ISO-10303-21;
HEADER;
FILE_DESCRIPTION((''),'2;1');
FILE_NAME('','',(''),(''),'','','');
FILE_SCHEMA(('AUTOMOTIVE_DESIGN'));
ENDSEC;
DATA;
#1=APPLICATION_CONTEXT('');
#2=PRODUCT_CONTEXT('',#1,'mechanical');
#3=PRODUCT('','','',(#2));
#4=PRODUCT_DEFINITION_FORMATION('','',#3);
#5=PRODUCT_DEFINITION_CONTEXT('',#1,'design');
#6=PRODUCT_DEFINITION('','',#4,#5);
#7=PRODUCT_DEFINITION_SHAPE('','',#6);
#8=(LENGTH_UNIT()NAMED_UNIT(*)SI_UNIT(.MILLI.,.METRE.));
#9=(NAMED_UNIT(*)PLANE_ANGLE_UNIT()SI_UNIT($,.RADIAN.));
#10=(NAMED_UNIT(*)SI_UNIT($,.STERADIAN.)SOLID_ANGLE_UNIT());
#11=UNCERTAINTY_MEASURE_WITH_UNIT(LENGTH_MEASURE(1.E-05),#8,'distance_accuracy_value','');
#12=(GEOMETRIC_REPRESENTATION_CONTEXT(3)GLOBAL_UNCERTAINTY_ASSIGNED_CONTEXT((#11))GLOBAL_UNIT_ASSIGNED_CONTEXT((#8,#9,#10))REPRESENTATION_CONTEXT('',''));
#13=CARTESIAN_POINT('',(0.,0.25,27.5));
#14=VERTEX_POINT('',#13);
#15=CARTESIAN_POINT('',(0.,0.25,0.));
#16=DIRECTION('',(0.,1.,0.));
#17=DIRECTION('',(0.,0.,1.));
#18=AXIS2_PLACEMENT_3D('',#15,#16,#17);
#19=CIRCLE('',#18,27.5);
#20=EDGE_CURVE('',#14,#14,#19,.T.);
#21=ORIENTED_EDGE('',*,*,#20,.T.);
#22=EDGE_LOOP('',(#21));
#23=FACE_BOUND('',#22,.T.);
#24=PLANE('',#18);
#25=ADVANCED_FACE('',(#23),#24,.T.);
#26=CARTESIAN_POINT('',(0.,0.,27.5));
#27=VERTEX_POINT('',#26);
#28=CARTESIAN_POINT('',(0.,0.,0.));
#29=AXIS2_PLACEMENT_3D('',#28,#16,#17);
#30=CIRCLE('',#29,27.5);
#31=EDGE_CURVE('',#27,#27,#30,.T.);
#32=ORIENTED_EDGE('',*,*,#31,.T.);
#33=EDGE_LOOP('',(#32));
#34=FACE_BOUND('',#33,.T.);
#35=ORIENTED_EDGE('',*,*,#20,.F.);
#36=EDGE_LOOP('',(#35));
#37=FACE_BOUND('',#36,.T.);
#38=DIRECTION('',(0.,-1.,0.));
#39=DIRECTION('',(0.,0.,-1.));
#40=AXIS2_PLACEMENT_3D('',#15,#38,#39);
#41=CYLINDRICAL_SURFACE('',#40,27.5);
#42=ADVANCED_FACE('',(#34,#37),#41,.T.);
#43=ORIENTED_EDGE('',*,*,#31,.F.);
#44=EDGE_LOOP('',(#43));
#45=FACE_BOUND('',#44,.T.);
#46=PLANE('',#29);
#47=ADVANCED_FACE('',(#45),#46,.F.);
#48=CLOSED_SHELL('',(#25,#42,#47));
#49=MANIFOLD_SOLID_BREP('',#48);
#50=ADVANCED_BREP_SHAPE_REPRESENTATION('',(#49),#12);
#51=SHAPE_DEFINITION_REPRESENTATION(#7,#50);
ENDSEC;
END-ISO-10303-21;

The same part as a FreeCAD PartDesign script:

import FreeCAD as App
import Part
import Sketcher
from FreeCAD import Vector

doc = App.newDocument("Part")
body = doc.addObject("PartDesign::Body", "Body")

sketch1 = doc.addObject("Sketcher::SketchObject", "Sketch")
body.addObject(sketch1)
sketch1.AttachmentSupport = (doc.XZ_Plane, [""])
sketch1.MapMode = "FlatFace"
sketch1.addGeometry(Part.Circle(Vector(0, 0, 0), Vector(0, 0, 1), 28), False)
sketch1.addConstraint(Sketcher.Constraint("Coincident", 0, 3, -1, 1))
sketch1.addConstraint(Sketcher.Constraint("Diameter", 0, 55.0))
pad1 = doc.addObject("PartDesign::Pad", "Pad")
body.addObject(pad1)
pad1.Profile = sketch1
pad1.Length = 0.25
pad1.Reversed = True

doc.recompute()
